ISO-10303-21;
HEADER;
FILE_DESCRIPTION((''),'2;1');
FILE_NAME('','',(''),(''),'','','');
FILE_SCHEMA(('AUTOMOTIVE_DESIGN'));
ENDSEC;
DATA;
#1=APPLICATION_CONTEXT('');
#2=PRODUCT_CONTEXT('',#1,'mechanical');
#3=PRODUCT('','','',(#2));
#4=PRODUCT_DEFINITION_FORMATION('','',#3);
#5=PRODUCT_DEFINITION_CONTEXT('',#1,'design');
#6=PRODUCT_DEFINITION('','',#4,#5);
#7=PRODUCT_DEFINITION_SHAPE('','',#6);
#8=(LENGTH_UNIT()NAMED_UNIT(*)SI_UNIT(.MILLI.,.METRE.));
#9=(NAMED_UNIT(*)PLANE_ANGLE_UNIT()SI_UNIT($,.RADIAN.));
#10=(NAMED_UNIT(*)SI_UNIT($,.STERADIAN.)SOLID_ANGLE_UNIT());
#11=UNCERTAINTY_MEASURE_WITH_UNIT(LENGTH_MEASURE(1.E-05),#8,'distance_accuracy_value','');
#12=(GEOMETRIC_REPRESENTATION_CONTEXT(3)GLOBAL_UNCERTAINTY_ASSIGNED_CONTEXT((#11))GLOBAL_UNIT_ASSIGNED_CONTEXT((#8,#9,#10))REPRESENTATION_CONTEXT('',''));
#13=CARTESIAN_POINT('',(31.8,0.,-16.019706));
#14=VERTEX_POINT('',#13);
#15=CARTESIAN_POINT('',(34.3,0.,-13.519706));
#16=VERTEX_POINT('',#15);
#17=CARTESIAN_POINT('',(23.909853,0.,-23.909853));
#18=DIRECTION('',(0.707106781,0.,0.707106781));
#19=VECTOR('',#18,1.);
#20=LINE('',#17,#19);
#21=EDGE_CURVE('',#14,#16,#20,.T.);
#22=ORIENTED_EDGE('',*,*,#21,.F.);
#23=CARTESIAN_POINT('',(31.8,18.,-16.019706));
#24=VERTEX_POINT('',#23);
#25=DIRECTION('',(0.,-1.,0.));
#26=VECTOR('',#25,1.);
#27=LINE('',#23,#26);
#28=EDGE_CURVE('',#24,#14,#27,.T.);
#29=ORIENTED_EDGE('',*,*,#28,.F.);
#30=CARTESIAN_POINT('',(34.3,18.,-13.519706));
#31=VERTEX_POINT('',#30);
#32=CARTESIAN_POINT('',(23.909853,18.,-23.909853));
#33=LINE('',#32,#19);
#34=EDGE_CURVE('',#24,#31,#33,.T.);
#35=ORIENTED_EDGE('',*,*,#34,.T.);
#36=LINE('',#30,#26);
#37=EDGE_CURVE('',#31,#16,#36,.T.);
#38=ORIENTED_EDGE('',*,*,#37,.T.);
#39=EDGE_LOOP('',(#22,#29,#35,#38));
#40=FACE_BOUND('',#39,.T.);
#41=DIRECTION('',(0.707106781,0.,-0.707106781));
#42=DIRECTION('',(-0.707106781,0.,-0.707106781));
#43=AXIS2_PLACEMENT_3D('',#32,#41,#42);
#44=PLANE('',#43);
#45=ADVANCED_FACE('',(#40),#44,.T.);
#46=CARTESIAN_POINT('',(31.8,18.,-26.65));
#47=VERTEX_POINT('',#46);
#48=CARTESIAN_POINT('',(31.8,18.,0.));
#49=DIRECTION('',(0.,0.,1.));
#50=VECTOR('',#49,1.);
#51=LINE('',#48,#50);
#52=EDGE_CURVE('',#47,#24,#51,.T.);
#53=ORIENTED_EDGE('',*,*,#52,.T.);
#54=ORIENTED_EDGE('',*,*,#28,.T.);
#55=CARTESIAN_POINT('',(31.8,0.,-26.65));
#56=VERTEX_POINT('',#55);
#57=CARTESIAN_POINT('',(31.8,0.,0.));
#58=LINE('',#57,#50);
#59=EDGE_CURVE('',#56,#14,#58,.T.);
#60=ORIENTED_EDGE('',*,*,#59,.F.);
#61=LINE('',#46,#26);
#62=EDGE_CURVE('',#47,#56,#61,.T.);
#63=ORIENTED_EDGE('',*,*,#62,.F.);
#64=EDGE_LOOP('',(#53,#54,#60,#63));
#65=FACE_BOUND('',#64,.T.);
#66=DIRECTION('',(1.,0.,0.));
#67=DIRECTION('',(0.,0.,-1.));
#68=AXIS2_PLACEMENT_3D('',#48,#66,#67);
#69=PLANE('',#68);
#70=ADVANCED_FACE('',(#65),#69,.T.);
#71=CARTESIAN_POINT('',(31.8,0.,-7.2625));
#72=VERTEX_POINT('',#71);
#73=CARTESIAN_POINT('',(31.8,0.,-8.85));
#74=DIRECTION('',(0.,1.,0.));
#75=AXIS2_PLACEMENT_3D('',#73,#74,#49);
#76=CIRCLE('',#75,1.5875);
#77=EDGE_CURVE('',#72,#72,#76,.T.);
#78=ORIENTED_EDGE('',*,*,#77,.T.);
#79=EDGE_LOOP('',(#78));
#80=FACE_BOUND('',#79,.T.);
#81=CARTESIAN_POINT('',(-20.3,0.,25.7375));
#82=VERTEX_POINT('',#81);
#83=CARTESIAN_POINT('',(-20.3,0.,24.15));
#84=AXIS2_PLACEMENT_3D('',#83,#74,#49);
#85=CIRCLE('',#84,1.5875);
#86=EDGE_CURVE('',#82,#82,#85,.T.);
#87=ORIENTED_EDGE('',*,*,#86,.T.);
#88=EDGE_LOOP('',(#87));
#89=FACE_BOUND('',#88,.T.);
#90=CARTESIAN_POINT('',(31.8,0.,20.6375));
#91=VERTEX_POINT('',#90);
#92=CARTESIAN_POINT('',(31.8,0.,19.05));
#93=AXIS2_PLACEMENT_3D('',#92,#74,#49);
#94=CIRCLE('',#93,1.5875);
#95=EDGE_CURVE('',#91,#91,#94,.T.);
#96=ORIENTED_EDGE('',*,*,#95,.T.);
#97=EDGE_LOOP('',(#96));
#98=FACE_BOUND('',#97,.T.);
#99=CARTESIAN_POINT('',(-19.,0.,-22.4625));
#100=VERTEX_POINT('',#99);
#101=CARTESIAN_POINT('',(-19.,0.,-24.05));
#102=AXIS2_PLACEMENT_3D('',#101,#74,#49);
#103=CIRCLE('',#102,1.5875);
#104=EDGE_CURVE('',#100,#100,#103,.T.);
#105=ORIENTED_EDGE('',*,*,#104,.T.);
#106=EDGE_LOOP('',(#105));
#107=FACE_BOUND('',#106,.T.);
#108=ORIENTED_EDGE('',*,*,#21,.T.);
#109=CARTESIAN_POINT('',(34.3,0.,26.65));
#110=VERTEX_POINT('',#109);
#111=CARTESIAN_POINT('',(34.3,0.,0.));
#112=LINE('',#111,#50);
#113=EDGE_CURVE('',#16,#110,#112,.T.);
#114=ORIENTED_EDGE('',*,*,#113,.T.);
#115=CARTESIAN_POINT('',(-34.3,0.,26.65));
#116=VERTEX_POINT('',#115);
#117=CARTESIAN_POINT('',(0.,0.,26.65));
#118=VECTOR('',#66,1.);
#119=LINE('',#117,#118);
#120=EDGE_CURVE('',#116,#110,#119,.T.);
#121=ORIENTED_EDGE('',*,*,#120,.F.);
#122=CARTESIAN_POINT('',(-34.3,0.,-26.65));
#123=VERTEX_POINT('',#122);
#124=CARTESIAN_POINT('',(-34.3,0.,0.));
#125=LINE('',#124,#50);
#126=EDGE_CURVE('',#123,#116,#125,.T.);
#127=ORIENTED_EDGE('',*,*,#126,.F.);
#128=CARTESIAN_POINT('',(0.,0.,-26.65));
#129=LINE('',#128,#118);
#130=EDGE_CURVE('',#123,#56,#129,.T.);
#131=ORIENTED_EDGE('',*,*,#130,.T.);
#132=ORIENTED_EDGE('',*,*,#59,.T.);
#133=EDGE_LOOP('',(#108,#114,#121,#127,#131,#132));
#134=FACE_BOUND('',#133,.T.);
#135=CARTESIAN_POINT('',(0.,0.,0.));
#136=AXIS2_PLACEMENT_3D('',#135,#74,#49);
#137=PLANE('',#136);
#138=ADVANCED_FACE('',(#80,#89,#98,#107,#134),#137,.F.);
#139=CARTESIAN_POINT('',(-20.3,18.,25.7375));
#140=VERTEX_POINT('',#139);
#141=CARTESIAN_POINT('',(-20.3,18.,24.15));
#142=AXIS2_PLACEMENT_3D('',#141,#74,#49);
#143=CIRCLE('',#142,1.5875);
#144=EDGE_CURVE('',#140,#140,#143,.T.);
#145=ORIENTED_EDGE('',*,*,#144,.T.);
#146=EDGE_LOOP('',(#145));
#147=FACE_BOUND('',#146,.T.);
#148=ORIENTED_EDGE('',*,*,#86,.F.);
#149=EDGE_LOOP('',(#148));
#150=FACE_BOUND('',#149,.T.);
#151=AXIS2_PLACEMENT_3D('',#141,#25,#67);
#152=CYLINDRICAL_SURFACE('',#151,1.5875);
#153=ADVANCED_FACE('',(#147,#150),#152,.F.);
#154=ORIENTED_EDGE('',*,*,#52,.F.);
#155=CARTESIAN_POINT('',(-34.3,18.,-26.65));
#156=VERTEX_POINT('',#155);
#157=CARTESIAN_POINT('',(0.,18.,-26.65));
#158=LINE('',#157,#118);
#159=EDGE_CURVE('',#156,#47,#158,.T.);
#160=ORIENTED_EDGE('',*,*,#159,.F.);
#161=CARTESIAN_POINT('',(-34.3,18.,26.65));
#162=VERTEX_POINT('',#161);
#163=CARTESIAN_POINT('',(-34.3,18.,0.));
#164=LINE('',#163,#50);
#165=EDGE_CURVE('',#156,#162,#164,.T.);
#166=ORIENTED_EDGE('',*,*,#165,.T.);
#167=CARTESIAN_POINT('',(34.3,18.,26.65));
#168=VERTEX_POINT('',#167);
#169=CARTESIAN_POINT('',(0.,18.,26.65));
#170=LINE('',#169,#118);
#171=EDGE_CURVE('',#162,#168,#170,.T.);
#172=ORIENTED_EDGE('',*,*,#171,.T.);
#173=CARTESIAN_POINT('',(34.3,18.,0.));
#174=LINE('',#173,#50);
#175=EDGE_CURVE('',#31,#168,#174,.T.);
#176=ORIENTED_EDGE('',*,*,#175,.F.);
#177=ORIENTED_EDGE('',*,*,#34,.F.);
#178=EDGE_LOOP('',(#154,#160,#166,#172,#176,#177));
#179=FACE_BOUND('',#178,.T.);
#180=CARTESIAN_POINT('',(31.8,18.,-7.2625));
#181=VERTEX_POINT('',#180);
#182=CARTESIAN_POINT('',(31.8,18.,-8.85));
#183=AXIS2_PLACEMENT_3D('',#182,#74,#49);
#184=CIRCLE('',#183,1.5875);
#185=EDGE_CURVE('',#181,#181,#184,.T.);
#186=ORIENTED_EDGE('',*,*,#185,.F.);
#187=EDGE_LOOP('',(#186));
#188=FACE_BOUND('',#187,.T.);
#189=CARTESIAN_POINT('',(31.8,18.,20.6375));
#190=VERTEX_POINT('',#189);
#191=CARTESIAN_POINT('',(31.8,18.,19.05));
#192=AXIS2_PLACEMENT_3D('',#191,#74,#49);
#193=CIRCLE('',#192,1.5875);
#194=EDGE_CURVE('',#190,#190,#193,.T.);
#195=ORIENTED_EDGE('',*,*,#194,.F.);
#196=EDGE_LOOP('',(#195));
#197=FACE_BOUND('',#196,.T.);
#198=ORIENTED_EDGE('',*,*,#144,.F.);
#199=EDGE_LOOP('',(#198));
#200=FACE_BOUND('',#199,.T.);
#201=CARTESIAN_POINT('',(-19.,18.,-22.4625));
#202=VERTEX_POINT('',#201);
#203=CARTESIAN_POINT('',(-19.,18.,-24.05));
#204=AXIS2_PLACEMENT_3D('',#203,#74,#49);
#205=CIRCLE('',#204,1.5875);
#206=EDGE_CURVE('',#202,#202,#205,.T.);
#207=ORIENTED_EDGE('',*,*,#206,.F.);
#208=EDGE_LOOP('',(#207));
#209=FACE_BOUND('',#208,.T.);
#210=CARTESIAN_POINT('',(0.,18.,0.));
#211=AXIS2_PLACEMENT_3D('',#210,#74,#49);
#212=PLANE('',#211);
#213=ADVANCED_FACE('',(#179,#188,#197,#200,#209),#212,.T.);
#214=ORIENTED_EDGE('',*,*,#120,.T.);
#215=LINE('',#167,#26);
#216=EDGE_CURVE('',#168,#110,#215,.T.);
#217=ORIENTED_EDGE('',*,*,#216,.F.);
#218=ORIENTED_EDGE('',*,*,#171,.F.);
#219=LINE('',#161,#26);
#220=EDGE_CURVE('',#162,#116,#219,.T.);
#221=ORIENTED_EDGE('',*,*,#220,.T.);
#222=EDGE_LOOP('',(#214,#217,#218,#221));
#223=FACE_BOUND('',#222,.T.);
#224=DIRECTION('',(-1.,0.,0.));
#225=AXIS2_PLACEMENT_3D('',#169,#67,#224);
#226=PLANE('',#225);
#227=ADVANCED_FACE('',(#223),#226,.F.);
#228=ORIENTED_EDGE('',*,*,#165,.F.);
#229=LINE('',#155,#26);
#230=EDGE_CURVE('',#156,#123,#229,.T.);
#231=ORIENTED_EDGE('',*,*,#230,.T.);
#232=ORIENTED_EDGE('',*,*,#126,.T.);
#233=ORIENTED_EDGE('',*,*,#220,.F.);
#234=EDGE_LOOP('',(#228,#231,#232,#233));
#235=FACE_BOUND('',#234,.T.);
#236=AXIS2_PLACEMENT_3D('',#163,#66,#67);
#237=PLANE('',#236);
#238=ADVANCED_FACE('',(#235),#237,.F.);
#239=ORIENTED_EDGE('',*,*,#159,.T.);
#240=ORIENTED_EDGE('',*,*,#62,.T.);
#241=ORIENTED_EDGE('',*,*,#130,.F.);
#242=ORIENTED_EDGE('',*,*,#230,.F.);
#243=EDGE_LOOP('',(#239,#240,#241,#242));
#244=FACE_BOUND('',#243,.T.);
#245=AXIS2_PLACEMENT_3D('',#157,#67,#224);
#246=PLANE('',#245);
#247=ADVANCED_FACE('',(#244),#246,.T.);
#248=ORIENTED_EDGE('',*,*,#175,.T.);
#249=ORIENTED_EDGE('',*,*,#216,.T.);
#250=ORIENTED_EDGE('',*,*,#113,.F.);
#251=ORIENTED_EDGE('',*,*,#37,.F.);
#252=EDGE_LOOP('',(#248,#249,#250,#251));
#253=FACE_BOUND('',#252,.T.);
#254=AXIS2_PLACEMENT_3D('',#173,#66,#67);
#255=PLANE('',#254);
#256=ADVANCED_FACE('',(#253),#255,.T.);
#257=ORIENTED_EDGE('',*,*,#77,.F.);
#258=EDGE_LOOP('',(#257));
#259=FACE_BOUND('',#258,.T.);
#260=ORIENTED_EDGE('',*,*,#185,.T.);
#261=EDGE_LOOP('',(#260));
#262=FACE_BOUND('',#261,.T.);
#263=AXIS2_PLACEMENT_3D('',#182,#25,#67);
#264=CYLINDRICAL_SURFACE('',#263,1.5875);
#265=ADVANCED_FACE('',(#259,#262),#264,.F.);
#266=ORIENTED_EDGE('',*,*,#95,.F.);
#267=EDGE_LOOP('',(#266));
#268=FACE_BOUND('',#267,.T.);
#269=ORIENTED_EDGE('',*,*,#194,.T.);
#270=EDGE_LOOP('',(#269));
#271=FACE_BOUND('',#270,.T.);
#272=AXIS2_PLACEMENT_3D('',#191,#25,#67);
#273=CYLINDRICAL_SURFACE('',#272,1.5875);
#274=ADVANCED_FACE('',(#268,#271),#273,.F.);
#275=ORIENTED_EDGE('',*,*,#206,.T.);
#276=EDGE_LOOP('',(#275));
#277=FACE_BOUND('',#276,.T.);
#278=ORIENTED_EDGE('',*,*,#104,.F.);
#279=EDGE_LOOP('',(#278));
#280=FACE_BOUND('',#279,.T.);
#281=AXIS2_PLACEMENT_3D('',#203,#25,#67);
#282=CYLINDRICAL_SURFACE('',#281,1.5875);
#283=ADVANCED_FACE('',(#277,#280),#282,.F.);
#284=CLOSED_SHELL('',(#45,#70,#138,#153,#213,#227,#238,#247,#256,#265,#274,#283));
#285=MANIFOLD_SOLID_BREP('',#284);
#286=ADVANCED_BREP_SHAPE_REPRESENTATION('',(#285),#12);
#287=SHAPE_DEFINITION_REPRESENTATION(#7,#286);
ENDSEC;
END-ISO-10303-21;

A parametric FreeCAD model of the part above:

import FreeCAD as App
import Part
import Sketcher

V = App.Vector
Q = App.Units.Quantity


def add_polygon(sketch, points):
    """Adds a closed chain of lines whose ends are joined by coincident constraints."""
    first, n = sketch.GeometryCount, len(points)
    for a, b in zip(points, points[1:] + points[:1]):
        sketch.addGeometry(Part.LineSegment(App.Vector(*a, 0), App.Vector(*b, 0)), False)
    for i in range(n):
        sketch.addConstraint(Sketcher.Constraint("Coincident", first + i, 2, first + (i + 1) % n, 1))

doc = App.newDocument("Part")
body = doc.addObject("PartDesign::Body", "Body")

# Sketch on XZ plane
sketch1 = body.newObject("Sketcher::SketchObject", "Sketch")
sketch1.AttachmentSupport = (doc.getObject("XZ_Plane"), [""])
sketch1.MapMode = "FlatFace"
add_polygon(sketch1, [(31.8, -26.6), (-34.3, -26.6), (-34.3, 26.6), (34.3, 26.6), (34.3, -13.5), (31.8, -16)])  # lines 0-5
sketch1.addGeometry(Part.Circle(V(-20.3, 24.1, 0), V(0, 0, 1), 1.6), False)  # 6
sketch1.addGeometry(Part.Circle(V(31.8, 19.1, 0), V(0, 0, 1), 1.6), False)  # 7
sketch1.addGeometry(Part.Circle(V(-19, -24.1, 0), V(0, 0, 1), 1.6), False)  # 8
sketch1.addGeometry(Part.Circle(V(31.8, -8.8, 0), V(0, 0, 1), 1.6), False)  # 9
sketch1.addConstraint([
    Sketcher.Constraint("Horizontal", 0),
    Sketcher.Constraint("Vertical", 1),
    Sketcher.Constraint("Horizontal", 2),
    Sketcher.Constraint("Vertical", 3),
    Sketcher.Constraint("Vertical", 5),
    Sketcher.Constraint("Equal", 6, 7),
    Sketcher.Constraint("Equal", 7, 8),
    Sketcher.Constraint("Equal", 8, 9),
    Sketcher.Constraint("Symmetric", 0, 2, 2, 2, -1, 1),
    Sketcher.Constraint("Vertical", 7, 3, 9, 3),
    Sketcher.Constraint("Vertical", 9, 3, 4, 2),
    Sketcher.Constraint("Angle", 4, Q("-135 deg")),
    Sketcher.Constraint("Diameter", 6, 3.175),
    Sketcher.Constraint("DistanceX", 0, 2, 0, 1, 66.1),
    Sketcher.Constraint("DistanceX", 2, 1, 2, 2, 68.6),
    Sketcher.Constraint("DistanceY", 1, 1, 1, 2, 53.3),
    Sketcher.Constraint("DistanceX", 8, 3, -1, 1, 19.0),
    Sketcher.Constraint("DistanceY", 9, 3, 6, 3, 33.0),
    Sketcher.Constraint("DistanceX", 0, 2, 6, 3, 14.0),
    Sketcher.Constraint("DistanceY", 7, 3, 6, 3, 5.1),
    Sketcher.Constraint("DistanceY", 8, 3, 6, 3, 48.2),
    Sketcher.Constraint("DistanceY", 0, 2, 8, 3, 2.6),
    Sketcher.Constraint("DistanceY", 3, 2, 3, 1, 40.169706),
])
pad1 = body.newObject("PartDesign::Pad", "Pad")
pad1.Profile = sketch1
pad1.Length = 18
pad1.Reversed = True

doc.recompute()
